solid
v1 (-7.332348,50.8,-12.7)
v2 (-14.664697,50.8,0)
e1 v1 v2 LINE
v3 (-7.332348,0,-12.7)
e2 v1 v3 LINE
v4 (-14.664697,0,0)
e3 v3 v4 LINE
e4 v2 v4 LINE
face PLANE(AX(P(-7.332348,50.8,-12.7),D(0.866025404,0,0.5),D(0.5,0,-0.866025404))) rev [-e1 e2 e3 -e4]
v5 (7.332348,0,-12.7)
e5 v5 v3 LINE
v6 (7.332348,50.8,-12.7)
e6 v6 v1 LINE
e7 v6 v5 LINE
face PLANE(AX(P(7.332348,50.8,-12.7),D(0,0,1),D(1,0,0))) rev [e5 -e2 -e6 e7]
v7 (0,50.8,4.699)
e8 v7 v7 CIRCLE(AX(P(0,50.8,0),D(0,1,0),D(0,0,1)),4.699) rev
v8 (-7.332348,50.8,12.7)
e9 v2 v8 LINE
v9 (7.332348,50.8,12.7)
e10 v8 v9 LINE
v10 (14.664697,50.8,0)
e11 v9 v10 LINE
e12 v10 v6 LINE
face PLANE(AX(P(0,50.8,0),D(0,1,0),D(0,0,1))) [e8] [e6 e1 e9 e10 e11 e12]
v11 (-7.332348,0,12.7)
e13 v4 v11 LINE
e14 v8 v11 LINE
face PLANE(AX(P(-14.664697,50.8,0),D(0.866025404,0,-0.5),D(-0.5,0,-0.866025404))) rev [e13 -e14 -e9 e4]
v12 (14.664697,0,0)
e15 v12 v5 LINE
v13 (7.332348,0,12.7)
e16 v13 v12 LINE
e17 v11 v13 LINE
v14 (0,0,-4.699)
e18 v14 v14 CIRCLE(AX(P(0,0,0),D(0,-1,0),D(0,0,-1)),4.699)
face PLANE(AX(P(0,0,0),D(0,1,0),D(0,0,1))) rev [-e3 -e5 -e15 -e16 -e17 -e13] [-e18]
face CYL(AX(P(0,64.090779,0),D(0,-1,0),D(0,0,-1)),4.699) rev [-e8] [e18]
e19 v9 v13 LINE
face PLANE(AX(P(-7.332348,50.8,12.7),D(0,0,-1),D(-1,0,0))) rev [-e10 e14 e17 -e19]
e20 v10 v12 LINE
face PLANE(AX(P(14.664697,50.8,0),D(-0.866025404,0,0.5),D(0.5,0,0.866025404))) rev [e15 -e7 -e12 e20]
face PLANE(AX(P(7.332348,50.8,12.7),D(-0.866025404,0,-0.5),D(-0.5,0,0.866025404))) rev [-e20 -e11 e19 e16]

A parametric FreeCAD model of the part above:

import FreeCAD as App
import Part
import Sketcher
Q = App.Units.Quantity

doc = App.newDocument("Part")
body = doc.addObject("PartDesign::Body", "Body")

# Sketch on XZ plane
sketch1 = body.newObject("Sketcher::SketchObject", "Sketch")
sketch1.AttachmentSupport = (doc.getObject("XZ_Plane"), [""])
sketch1.MapMode = "FlatFace"
sketch1.addGeometry([
    Part.LineSegment(App.Vector(14.664697, 0, 0), App.Vector(7.332348, -12.7, 0)),  # 0
    Part.LineSegment(App.Vector(7.332348, -12.7, 0), App.Vector(-7.332348, -12.7, 0)),  # 1
    Part.LineSegment(App.Vector(-7.332348, -12.7, 0), App.Vector(-14.664697, 0, 0)),  # 2
    Part.LineSegment(App.Vector(-14.664697, 0, 0), App.Vector(-7.332348, 12.7, 0)),  # 3
    Part.LineSegment(App.Vector(-7.332348, 12.7, 0), App.Vector(7.332348, 12.7, 0)),  # 4
    Part.LineSegment(App.Vector(7.332348, 12.7, 0), App.Vector(14.664697, 0, 0)),  # 5
], False)
sketch1.addConstraint([
    Sketcher.Constraint("Coincident", 0, 2, 1, 1),
    Sketcher.Constraint("Coincident", 1, 2, 2, 1),
    Sketcher.Constraint("Coincident", 2, 2, 3, 1),
    Sketcher.Constraint("Coincident", 3, 2, 4, 1),
    Sketcher.Constraint("Coincident", 4, 2, 5, 1),
    Sketcher.Constraint("Coincident", 5, 2, 0, 1),
    Sketcher.Constraint("Horizontal", 1),
    Sketcher.Constraint("Horizontal", 4),
    Sketcher.Constraint("Symmetric", 0, 2, 3, 2, -1, 1),
    Sketcher.Constraint("Symmetric", 2, 2, 5, 2, -1, 1),
    Sketcher.Constraint("PointOnObject", 2, 2, -1),
    Sketcher.Constraint("Parallel", 2, 5),
    Sketcher.Constraint("Vertical", 1, 2, 3, 2),
    Sketcher.Constraint("Angle", 0, Q("-120 deg")),
    Sketcher.Constraint("DistanceY", 1, 2, 3, 2, Q("1 in")),
    Sketcher.Constraint("DistanceX", 1, 2, 1, 1, Q("14.664697 mm")),
])
pad1 = body.newObject("PartDesign::Pad", "Pad")
pad1.Profile = sketch1
pad1.Length = Q("2 in")
pad1.Reversed = True

# Sketch on XZ plane
sketch2 = body.newObject("Sketcher::SketchObject", "Sketch001")
sketch2.AttachmentSupport = (doc.getObject("XZ_Plane"), [""])
sketch2.MapMode = "FlatFace"
sketch2.addGeometry(Part.Circle(App.Vector(0, 0, 0), App.Vector(0, 0, 1), 4.699), False)
sketch2.addConstraint([
    Sketcher.Constraint("Coincident", 0, 3, -1, 1),
    Sketcher.Constraint("Diameter", 0, Q("0.37 in")),
])
pocket1 = body.newObject("PartDesign::Pocket", "Pocket")
pocket1.Profile = sketch2
pocket1.Length = Q("2 in")

doc.recompute()
